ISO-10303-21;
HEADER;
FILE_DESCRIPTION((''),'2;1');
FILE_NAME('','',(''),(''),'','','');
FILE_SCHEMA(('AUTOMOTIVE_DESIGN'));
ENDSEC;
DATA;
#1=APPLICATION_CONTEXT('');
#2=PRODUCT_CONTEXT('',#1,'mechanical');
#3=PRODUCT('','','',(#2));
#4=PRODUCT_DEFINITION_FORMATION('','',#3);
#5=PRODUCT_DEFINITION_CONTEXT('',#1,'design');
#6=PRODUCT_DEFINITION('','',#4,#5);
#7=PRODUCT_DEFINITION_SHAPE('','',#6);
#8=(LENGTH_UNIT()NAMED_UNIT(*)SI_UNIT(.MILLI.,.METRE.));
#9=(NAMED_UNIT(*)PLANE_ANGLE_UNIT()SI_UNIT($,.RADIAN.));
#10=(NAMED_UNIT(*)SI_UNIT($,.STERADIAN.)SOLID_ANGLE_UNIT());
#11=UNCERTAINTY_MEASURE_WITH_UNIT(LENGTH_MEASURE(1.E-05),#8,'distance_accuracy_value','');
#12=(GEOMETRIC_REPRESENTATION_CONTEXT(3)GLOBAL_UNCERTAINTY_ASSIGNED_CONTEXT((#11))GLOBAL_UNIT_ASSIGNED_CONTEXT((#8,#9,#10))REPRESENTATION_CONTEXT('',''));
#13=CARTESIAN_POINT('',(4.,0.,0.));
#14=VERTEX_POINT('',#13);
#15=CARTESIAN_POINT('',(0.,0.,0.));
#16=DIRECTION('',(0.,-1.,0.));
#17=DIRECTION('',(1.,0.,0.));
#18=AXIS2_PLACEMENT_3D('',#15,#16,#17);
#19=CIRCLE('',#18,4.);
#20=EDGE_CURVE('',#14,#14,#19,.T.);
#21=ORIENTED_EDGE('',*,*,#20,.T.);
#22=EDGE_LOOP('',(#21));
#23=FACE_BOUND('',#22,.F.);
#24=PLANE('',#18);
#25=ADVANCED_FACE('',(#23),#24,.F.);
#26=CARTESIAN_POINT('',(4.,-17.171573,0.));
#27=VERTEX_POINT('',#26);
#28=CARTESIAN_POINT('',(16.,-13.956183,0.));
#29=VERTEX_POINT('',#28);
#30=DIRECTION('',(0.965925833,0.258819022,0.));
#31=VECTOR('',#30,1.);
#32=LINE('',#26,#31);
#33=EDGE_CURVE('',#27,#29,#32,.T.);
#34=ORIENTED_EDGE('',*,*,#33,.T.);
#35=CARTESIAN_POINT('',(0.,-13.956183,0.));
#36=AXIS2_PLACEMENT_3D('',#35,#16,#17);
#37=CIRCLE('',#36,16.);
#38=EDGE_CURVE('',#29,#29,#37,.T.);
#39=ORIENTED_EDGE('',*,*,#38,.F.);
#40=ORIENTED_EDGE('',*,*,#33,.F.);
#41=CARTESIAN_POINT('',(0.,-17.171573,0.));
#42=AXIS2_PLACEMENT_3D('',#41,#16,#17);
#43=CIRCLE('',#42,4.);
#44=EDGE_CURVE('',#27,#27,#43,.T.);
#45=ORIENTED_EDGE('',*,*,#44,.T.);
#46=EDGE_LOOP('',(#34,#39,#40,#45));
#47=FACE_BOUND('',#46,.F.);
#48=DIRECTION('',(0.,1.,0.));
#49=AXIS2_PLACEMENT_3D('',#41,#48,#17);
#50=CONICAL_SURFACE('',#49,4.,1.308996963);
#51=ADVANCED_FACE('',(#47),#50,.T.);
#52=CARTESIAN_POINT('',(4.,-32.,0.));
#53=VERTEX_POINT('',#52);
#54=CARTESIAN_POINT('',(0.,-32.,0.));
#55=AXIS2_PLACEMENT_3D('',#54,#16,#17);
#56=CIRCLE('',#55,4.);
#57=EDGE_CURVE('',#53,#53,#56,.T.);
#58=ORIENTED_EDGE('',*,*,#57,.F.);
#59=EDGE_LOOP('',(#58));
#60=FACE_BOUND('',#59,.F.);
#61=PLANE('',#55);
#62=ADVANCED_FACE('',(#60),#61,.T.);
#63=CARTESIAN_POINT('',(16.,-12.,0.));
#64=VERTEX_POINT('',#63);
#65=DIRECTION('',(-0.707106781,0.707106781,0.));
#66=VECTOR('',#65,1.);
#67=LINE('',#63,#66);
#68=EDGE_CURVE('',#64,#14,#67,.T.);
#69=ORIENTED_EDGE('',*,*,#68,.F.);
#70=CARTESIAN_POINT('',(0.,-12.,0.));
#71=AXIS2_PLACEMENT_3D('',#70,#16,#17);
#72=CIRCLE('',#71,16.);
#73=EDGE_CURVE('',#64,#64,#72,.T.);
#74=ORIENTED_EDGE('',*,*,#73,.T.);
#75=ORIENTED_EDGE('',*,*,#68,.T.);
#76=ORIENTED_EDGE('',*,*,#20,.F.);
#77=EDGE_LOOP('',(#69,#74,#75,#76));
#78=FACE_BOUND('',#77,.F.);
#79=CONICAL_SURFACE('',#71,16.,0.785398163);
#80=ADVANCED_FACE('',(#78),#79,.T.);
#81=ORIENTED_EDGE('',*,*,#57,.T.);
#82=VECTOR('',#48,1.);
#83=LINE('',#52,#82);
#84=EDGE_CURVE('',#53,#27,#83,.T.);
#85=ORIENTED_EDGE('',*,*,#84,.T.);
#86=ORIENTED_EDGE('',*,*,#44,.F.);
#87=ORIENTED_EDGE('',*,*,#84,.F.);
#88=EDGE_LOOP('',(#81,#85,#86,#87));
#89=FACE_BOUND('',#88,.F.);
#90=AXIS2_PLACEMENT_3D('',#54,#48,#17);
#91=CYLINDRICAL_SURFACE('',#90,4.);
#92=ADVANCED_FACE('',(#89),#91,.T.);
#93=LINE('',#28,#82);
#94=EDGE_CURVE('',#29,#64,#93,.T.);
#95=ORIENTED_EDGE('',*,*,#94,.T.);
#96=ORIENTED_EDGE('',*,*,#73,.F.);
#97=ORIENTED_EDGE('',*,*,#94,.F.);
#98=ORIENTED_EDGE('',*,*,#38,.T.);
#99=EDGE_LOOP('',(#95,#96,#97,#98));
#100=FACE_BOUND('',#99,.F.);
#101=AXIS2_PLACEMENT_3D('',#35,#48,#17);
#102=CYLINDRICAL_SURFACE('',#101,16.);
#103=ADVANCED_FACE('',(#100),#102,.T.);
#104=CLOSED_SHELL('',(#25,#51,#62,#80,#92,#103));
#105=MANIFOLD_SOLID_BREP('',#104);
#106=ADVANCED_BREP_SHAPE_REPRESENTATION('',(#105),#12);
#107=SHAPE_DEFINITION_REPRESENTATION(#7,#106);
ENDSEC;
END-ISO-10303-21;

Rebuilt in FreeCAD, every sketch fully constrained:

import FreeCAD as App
import Part
import Sketcher
from FreeCAD import Vector
Q = App.Units.Quantity


def add_polygon(sketch, points):
    """Adds a closed chain of lines whose ends are joined by coincident constraints."""
    first, n = sketch.GeometryCount, len(points)
    for a, b in zip(points, points[1:] + points[:1]):
        sketch.addGeometry(Part.LineSegment(App.Vector(*a, 0), App.Vector(*b, 0)), False)
    for i in range(n):
        sketch.addConstraint(Sketcher.Constraint("Coincident", first + i, 2, first + (i + 1) % n, 1))

doc = App.newDocument("Part")
body = doc.addObject("PartDesign::Body", "Body")

sketch1 = body.newObject("Sketcher::SketchObject", "Sketch")
sketch1.AttachmentSupport = (doc.getObject("XY_Plane"), [""])
sketch1.MapMode = "FlatFace"
add_polygon(sketch1, [(4, 0), (0, 0), (0, -32), (4, -32), (4, -17.2), (16, -14), (16, -12)])
sketch1.addConstraint([
    Sketcher.Constraint("Horizontal", 0),
    Sketcher.Constraint("Vertical", 1),
    Sketcher.Constraint("Horizontal", 2),
    Sketcher.Constraint("Vertical", 3),
    Sketcher.Constraint("Vertical", 5),
    Sketcher.Constraint("Coincident", 0, 2, -1, 1),
    Sketcher.Constraint("Vertical", 3, 2, 6, 2),
    Sketcher.Constraint("DistanceX", 0, 2, 0, 1, 4.0),
    Sketcher.Constraint("DistanceY", 1, 2, 1, 1, 32.0),
    Sketcher.Constraint("Angle", 4, Q("14.999999 deg")),
    Sketcher.Constraint("Angle", 6, Q("135 deg")),
    Sketcher.Constraint("DistanceX", -1, 1, 4, 2, 16.0),
    Sketcher.Constraint("DistanceY", 3, 1, 3, 2, 14.828427),
])
revolution = body.newObject("PartDesign::Revolution", "Revolution")
revolution.Profile = sketch1
revolution.ReferenceAxis = (sketch1, ["V_Axis"])
revolution.Angle = 360

doc.recompute()
